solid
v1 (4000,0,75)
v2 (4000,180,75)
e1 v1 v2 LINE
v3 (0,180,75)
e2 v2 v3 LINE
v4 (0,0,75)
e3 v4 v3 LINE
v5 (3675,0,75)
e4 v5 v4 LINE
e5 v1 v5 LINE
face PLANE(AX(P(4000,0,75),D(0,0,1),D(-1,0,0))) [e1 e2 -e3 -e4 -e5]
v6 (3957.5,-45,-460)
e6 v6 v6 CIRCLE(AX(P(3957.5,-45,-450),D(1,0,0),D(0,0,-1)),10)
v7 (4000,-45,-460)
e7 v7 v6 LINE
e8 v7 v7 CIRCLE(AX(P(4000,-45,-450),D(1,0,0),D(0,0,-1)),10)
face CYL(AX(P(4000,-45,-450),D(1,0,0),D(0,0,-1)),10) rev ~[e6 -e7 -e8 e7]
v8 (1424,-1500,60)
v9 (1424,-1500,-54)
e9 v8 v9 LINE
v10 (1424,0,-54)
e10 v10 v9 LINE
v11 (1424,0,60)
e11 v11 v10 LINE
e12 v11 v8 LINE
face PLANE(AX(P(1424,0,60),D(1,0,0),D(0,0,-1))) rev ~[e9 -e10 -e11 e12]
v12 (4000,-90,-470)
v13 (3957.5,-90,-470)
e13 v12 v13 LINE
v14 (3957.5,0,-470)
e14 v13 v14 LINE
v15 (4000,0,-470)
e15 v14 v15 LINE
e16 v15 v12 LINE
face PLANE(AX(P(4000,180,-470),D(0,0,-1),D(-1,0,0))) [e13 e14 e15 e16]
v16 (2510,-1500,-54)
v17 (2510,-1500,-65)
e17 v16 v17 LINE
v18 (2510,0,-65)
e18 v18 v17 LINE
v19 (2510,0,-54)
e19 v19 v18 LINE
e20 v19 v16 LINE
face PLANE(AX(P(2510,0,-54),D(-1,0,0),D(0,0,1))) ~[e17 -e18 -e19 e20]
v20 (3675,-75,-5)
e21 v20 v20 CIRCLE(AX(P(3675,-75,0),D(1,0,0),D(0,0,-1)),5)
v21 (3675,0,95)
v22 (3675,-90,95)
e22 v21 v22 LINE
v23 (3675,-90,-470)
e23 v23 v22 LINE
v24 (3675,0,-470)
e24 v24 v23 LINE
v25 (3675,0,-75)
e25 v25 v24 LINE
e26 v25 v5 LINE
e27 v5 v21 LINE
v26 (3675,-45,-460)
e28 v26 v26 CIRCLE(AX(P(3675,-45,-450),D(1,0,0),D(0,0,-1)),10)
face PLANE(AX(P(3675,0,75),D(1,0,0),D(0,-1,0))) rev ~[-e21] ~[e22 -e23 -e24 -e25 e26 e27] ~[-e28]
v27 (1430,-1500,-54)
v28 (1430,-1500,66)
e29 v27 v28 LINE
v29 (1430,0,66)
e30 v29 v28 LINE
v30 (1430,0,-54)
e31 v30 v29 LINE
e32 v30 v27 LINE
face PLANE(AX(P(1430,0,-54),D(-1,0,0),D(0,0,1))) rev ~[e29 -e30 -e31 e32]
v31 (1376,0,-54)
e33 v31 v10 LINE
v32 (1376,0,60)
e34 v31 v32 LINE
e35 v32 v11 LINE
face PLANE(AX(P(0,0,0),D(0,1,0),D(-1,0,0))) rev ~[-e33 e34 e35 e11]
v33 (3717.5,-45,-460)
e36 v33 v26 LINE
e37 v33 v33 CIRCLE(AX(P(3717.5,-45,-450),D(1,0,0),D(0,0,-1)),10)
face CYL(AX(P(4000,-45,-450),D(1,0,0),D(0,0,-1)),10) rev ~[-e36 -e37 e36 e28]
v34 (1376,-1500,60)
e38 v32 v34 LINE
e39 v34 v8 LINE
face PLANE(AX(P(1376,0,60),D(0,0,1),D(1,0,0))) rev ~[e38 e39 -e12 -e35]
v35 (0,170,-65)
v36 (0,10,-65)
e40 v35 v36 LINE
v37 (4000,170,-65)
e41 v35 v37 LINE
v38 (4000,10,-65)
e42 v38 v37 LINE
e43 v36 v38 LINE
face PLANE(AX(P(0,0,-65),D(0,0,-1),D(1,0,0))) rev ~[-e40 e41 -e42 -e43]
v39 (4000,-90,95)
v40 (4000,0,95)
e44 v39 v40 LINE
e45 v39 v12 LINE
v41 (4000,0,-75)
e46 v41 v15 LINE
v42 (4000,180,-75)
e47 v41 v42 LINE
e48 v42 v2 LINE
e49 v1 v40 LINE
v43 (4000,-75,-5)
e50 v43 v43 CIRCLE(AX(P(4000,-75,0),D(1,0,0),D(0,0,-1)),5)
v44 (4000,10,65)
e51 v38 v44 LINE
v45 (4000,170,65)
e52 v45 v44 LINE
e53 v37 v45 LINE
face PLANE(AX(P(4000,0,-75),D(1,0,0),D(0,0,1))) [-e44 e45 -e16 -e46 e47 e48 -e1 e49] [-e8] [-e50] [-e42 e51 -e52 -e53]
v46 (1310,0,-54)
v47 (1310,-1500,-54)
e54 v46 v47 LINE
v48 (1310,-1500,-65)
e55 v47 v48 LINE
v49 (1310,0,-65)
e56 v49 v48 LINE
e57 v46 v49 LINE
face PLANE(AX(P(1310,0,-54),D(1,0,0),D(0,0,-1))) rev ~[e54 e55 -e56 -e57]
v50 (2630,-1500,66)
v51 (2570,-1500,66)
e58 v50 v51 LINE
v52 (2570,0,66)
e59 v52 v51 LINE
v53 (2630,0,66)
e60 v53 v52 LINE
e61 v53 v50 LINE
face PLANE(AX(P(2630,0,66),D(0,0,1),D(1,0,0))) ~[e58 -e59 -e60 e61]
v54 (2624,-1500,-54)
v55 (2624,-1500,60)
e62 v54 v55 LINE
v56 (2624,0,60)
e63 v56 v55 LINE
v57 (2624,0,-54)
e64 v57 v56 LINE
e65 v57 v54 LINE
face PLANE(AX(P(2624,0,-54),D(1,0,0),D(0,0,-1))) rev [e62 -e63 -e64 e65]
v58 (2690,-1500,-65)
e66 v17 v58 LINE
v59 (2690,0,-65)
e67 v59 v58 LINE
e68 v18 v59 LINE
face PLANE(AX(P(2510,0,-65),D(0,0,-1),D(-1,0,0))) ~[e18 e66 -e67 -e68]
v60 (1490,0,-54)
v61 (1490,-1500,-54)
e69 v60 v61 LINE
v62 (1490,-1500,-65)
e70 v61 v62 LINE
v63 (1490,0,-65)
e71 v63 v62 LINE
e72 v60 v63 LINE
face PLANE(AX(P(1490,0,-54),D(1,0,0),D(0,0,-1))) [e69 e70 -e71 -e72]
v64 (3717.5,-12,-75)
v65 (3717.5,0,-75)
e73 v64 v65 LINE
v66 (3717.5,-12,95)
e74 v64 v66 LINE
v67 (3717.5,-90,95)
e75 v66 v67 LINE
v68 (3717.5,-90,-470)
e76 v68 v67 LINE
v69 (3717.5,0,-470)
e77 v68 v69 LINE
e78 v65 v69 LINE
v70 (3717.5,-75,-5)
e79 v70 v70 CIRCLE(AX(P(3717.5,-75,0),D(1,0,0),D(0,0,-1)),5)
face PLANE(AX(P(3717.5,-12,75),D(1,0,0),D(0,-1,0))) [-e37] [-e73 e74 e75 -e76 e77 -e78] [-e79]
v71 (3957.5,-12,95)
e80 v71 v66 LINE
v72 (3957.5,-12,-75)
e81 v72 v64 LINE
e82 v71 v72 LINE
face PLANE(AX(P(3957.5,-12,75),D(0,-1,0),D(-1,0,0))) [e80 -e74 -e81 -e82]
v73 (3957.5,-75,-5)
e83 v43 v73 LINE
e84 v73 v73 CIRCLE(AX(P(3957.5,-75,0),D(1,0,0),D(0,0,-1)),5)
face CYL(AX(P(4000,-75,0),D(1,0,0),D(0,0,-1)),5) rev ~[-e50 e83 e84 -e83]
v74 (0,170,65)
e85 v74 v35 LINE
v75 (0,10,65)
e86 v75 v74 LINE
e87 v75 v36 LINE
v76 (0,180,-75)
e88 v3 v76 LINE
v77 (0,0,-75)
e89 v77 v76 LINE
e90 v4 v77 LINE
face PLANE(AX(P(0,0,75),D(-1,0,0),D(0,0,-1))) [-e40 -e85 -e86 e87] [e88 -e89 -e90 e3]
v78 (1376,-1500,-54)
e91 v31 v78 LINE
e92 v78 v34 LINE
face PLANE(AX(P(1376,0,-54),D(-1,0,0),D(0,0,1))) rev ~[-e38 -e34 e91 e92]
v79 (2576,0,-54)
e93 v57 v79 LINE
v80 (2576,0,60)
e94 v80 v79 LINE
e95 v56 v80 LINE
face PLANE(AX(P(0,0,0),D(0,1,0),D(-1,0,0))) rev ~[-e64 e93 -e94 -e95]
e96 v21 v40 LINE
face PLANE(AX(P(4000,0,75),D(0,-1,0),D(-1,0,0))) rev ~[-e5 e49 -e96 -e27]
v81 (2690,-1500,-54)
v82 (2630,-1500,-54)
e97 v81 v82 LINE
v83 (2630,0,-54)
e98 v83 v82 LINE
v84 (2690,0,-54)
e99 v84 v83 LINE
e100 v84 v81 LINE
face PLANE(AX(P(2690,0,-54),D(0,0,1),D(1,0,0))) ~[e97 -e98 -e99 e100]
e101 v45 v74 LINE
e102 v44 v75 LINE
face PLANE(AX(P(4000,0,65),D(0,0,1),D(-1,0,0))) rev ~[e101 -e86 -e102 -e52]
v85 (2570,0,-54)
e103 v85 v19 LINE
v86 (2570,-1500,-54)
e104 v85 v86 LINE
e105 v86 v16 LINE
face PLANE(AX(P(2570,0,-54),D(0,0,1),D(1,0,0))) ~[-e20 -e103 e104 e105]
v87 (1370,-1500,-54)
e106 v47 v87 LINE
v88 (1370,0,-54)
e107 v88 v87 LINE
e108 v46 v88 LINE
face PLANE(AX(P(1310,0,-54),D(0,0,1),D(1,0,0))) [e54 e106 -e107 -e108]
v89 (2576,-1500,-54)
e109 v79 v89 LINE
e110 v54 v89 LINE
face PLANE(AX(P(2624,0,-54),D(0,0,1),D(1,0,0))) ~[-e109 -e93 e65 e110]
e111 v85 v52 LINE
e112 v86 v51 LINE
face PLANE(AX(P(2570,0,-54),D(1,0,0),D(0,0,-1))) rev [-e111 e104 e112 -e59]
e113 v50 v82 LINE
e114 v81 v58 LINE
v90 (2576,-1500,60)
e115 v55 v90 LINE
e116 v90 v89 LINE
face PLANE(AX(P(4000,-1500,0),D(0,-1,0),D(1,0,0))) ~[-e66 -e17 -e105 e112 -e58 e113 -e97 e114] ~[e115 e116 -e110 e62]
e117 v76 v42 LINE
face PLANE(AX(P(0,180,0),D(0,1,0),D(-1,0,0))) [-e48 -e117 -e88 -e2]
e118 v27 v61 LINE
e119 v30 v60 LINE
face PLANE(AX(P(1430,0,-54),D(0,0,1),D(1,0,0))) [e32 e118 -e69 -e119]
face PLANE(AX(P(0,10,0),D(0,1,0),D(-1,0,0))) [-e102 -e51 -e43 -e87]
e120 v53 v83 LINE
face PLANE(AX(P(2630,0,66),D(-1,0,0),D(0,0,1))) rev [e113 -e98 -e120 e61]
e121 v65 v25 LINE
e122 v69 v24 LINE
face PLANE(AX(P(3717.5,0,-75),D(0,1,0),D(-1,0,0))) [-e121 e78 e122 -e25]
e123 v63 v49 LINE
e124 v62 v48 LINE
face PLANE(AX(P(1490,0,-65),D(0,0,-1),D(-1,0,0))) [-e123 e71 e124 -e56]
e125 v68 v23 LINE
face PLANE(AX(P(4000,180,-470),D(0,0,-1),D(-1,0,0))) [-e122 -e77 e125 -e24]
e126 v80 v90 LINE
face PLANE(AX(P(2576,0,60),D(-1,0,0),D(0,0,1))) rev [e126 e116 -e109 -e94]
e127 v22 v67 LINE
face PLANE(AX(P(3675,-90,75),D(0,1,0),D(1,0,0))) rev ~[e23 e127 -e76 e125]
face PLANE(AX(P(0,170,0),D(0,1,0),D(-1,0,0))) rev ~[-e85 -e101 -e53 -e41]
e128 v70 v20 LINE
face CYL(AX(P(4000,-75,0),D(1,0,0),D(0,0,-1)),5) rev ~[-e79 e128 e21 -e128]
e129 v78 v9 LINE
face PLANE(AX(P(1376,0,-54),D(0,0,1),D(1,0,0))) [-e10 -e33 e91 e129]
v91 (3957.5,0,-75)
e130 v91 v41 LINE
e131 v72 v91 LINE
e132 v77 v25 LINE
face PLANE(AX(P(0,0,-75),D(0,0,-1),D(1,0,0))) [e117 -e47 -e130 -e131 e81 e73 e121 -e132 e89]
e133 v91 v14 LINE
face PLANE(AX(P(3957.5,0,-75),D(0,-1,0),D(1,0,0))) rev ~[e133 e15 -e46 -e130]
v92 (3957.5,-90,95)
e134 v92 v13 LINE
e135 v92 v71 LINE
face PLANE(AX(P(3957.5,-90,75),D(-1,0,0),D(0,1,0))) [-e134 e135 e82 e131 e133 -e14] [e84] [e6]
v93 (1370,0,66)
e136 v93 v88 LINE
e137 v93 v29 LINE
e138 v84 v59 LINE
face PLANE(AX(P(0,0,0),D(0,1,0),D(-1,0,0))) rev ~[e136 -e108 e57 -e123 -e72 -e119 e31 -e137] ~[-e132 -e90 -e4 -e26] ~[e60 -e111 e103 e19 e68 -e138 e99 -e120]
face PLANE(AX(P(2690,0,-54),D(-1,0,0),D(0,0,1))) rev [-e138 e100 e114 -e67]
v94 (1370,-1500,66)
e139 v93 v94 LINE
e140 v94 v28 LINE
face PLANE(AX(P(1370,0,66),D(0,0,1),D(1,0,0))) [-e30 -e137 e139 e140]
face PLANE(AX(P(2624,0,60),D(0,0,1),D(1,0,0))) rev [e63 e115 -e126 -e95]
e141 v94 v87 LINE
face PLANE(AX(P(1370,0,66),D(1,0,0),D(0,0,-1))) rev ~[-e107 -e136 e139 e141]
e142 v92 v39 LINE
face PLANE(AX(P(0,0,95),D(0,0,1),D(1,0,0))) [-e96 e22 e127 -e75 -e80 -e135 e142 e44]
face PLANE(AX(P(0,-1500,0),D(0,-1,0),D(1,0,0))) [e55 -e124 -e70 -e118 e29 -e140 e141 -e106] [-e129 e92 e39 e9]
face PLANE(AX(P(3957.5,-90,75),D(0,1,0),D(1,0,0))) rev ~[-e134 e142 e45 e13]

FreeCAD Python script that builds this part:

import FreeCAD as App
import Part
import Sketcher
from FreeCAD import Vector


def faces_at(feature, points):
    """Names of the faces that lie closest to the given points."""
    faces = feature.Shape.Faces
    near = lambda p: min(range(len(faces)), key=lambda i: faces[i].distToShape(Part.Vertex(*p))[0])
    return sorted({f"Face{near(p) + 1}" for p in points})

doc = App.newDocument("Part")
params = doc.addObject("Spreadsheet::Sheet", "Params")
for row, (alias, value) in enumerate([
    ("sketch1_width", "4000 mm"),
    ("sketch1_height", "150 mm"),
    ("pad1_length", "180 mm"),
    ("thickness_wall", "10 mm"),
    ("sketch2_width", "60 mm"),
    ("sketch2_height", "114 mm"),
    ("sketch2_height2", "11 mm"),
    ("pad2_length", "1500 mm"),
    ("sketch3_width", "325 mm"),
    ("sketch3_height", "90 mm"),
    ("sketch3_width2", "42.5 mm"),
    ("pad3_length", "20 mm"),
    ("pad3_length2", "150 mm"),
    ("sketch4_height", "90 mm"),
    ("sketch4_width", "42.5 mm"),
    ("pad4_length", "395 mm"),
    ("sketch5_diameter", "10 mm"),
    ("sketch5_diameter2", "20 mm"),
    ("pocket1_length", "325 mm"),
], start=1):
    params.set(f"A{row}", alias)
    params.set(f"B{row}", "=" + value)
    params.setAlias(f"B{row}", alias)

body = doc.addObject("PartDesign::Body", "Body")

sketch1 = body.newObject("Sketcher::SketchObject", "Sketch")
sketch1.AttachmentSupport = (doc.getObject("XZ_Plane"), [""])
sketch1.MapMode = "FlatFace"
sketch1.addGeometry([
    Part.LineSegment(Vector(0, 75, 0), Vector(4000, 75, 0)),
    Part.LineSegment(Vector(4000, 75, 0), Vector(4000, -75, 0)),
    Part.LineSegment(Vector(4000, -75, 0), Vector(0, -75, 0)),
    Part.LineSegment(Vector(0, -75, 0), Vector(0, 75, 0)),
], False)
sketch1.addConstraint([
    Sketcher.Constraint("Coincident", 0, 2, 1, 1),
    Sketcher.Constraint("Coincident", 1, 2, 2, 1),
    Sketcher.Constraint("Coincident", 2, 2, 3, 1),
    Sketcher.Constraint("Coincident", 3, 2, 0, 1),
    Sketcher.Constraint("Horizontal", 0),
    Sketcher.Constraint("Vertical", 1),
    Sketcher.Constraint("Horizontal", 2),
    Sketcher.Constraint("Vertical", 3),
    Sketcher.Constraint("Symmetric", 2, 2, 3, 2, -1, 1),
    Sketcher.Constraint("DistanceX", 0, 1, 0, 2, 4000.0),
    Sketcher.Constraint("DistanceY", 1, 2, 1, 1, 150.0),
])
sketch1.setExpression("Constraints[9]", "Params.sketch1_width")
sketch1.setExpression("Constraints[10]", "Params.sketch1_height")
pad1 = body.newObject("PartDesign::Pad", "Pad")
pad1.Profile = sketch1
pad1.setExpression("Length", "Params.pad1_length")
pad1.Reversed = True
doc.recompute()

thickness = body.newObject("PartDesign::Thickness", "Thickness")
thickness.Base = (pad1, faces_at(pad1, [(4000, 60, 25), (0, 60, -25)]))
thickness.setExpression("Value", "Params.thickness_wall")
thickness.Reversed = True
thickness.Join = "Intersection"

sketch2 = body.newObject("Sketcher::SketchObject", "Sketch001")
sketch2.AttachmentSupport = (doc.getObject("XZ_Plane"), [""])
sketch2.MapMode = "FlatFace"
sketch2.addGeometry([
    Part.LineSegment(Vector(1370, -54, 0), Vector(1310, -54, 0)),
    Part.LineSegment(Vector(1310, -54, 0), Vector(1310, -65, 0)),
    Part.LineSegment(Vector(1310, -65, 0), Vector(1490, -65, 0)),
    Part.LineSegment(Vector(1490, -65, 0), Vector(1490, -54, 0)),
    Part.LineSegment(Vector(1490, -54, 0), Vector(1430, -54, 0)),
    Part.LineSegment(Vector(1430, -54, 0), Vector(1430, 66, 0)),
    Part.LineSegment(Vector(1430, 66, 0), Vector(1370, 66, 0)),
    Part.LineSegment(Vector(1370, 66, 0), Vector(1370, -54, 0)),
    Part.LineSegment(Vector(1424, -54, 0), Vector(1376, -54, 0)),
    Part.LineSegment(Vector(1376, -54, 0), Vector(1376, 60, 0)),
    Part.LineSegment(Vector(1376, 60, 0), Vector(1424, 60, 0)),
    Part.LineSegment(Vector(1424, 60, 0), Vector(1424, -54, 0)),
], False)
sketch2.addConstraint([
    Sketcher.Constraint("Coincident", 0, 2, 1, 1),
    Sketcher.Constraint("Coincident", 1, 2, 2, 1),
    Sketcher.Constraint("Coincident", 2, 2, 3, 1),
    Sketcher.Constraint("Coincident", 3, 2, 4, 1),
    Sketcher.Constraint("Coincident", 4, 2, 5, 1),
    Sketcher.Constraint("Coincident", 5, 2, 6, 1),
    Sketcher.Constraint("Coincident", 6, 2, 7, 1),
    Sketcher.Constraint("Coincident", 7, 2, 0, 1),
    Sketcher.Constraint("Coincident", 8, 2, 9, 1),
    Sketcher.Constraint("Coincident", 9, 2, 10, 1),
    Sketcher.Constraint("Coincident", 10, 2, 11, 1),
    Sketcher.Constraint("Coincident", 11, 2, 8, 1),
    Sketcher.Constraint("Horizontal", 0),
    Sketcher.Constraint("Vertical", 1),
    Sketcher.Constraint("Horizontal", 2),
    Sketcher.Constraint("Vertical", 3),
    Sketcher.Constraint("Horizontal", 4),
    Sketcher.Constraint("Vertical", 5),
    Sketcher.Constraint("Horizontal", 6),
    Sketcher.Constraint("Vertical", 7),
    Sketcher.Constraint("Horizontal", 8),
    Sketcher.Constraint("Vertical", 9),
    Sketcher.Constraint("Horizontal", 10),
    Sketcher.Constraint("Vertical", 11),
    Sketcher.Constraint("Horizontal", 0, 2, 3, 2),
    Sketcher.Constraint("Horizontal", 7, 2, 8, 2),
    Sketcher.Constraint("Equal", 0, 4),
    Sketcher.Constraint("Equal", 4, 6),
    Sketcher.Constraint("DistanceX", 0, 2, 0, 1, 60.0),
    Sketcher.Constraint("DistanceY", 9, 1, 9, 2, 114.0),
    Sketcher.Constraint("DistanceY", -1, 1, 9, 2, 60.0),
    Sketcher.Constraint("DistanceX", 7, 2, 8, 2, 6.0),
    Sketcher.Constraint("DistanceY", 9, 2, 6, 2, 6.0),
    Sketcher.Constraint("DistanceX", 10, 2, 5, 2, 6.0),
    Sketcher.Constraint("DistanceY", 1, 2, 1, 1, 11.0),
    Sketcher.Constraint("DistanceX", -1, 1, 0, 2, 1310.0),
])
sketch2.setExpression("Constraints[28]", "Params.sketch2_width")
sketch2.setExpression("Constraints[29]", "Params.sketch2_height")
sketch2.setExpression("Constraints[34]", "Params.sketch2_height2")
pad2 = body.newObject("PartDesign::Pad", "Pad001")
pad2.Profile = sketch2
pad2.setExpression("Length", "Params.pad2_length")
doc.recompute()

datumplane = body.newObject("PartDesign::Plane", "DatumPlane")
datumplane.AttachmentSupport = (doc.getObject("YZ_Plane"), [""])
datumplane.MapMode = "FlatFace"
datumplane.AttachmentOffset = App.Placement(Vector(0, 0, 2000), App.Rotation())
mirrored = body.newObject("PartDesign::Mirrored", "Mirrored")
mirrored.Originals = [pad2]
mirrored.MirrorPlane = (datumplane, [""])
body.Tip = mirrored

sketch3 = body.newObject("Sketcher::SketchObject", "Sketch002")
sketch3.AttachmentSupport = (doc.getObject("XY_Plane"), [""])
sketch3.MapMode = "FlatFace"
sketch3.AttachmentOffset = App.Placement(Vector(0, 0, 75), App.Rotation())
sketch3.addGeometry([
    Part.LineSegment(Vector(4000, -90, 0), Vector(4000, 0, 0)),
    Part.LineSegment(Vector(4000, 0, 0), Vector(3675, 0, 0)),
    Part.LineSegment(Vector(3675, 0, 0), Vector(3675, -90, 0)),
    Part.LineSegment(Vector(3675, -90, 0), Vector(3718, -90, 0)),
    Part.LineSegment(Vector(3718, -90, 0), Vector(3718, -12, 0)),
    Part.LineSegment(Vector(3718, -12, 0), Vector(3958, -12, 0)),
    Part.LineSegment(Vector(3958, -12, 0), Vector(3958, -90, 0)),
    Part.LineSegment(Vector(3958, -90, 0), Vector(4000, -90, 0)),
], False)
sketch3.addConstraint([
    Sketcher.Constraint("Coincident", 0, 2, 1, 1),
    Sketcher.Constraint("Coincident", 1, 2, 2, 1),
    Sketcher.Constraint("Coincident", 2, 2, 3, 1),
    Sketcher.Constraint("Coincident", 3, 2, 4, 1),
    Sketcher.Constraint("Coincident", 4, 2, 5, 1),
    Sketcher.Constraint("Coincident", 5, 2, 6, 1),
    Sketcher.Constraint("Coincident", 6, 2, 7, 1),
    Sketcher.Constraint("Coincident", 7, 2, 0, 1),
    Sketcher.Constraint("Vertical", 0),
    Sketcher.Constraint("Horizontal", 1),
    Sketcher.Constraint("Vertical", 2),
    Sketcher.Constraint("Horizontal", 3),
    Sketcher.Constraint("Vertical", 4),
    Sketcher.Constraint("Horizontal", 5),
    Sketcher.Constraint("Vertical", 6),
    Sketcher.Constraint("Horizontal", 7),
    Sketcher.Constraint("PointOnObject", 0, 2, -1),
    Sketcher.Constraint("Horizontal", 3, 2, 6, 2),
    Sketcher.Constraint("Equal", 3, 7),
    Sketcher.Constraint("DistanceX", 1, 2, 1, 1, 325.0),
    Sketcher.Constraint("DistanceY", 0, 1, 0, 2, 90.0),
    Sketcher.Constraint("DistanceX", 3, 1, 3, 2, 42.5),
    Sketcher.Constraint("DistanceY", 4, 2, -1, 1, 12.0),
    Sketcher.Constraint("DistanceX", -1, 1, 0, 2, 4000.0),
])
sketch3.setExpression("Constraints[19]", "Params.sketch3_width")
sketch3.setExpression("Constraints[20]", "Params.sketch3_height")
sketch3.setExpression("Constraints[21]", "Params.sketch3_width2")
pad3 = body.newObject("PartDesign::Pad", "Pad002")
pad3.Profile = sketch3
pad3.Type = "TwoLengths"
pad3.setExpression("Length", "Params.pad3_length")
pad3.setExpression("Length2", "Params.pad3_length2")

sketch4 = body.newObject("Sketcher::SketchObject", "Sketch003")
sketch4.AttachmentSupport = (doc.getObject("XY_Plane"), [""])
sketch4.MapMode = "FlatFace"
sketch4.AttachmentOffset = App.Placement(Vector(0, 0, -75), App.Rotation())
sketch4.addGeometry([
    Part.LineSegment(Vector(3958, 0, 0), Vector(4000, 0, 0)),
    Part.LineSegment(Vector(4000, 0, 0), Vector(4000, -90, 0)),
    Part.LineSegment(Vector(4000, -90, 0), Vector(3958, -90, 0)),
    Part.LineSegment(Vector(3958, -90, 0), Vector(3958, 0, 0)),
    Part.LineSegment(Vector(3718, 0, 0), Vector(3718, -90, 0)),
    Part.LineSegment(Vector(3718, -90, 0), Vector(3675, -90, 0)),
    Part.LineSegment(Vector(3675, -90, 0), Vector(3675, 0, 0)),
    Part.LineSegment(Vector(3675, 0, 0), Vector(3718, 0, 0)),
], False)
sketch4.addConstraint([
    Sketcher.Constraint("Coincident", 0, 2, 1, 1),
    Sketcher.Constraint("Coincident", 1, 2, 2, 1),
    Sketcher.Constraint("Coincident", 2, 2, 3, 1),
    Sketcher.Constraint("Coincident", 3, 2, 0, 1),
    Sketcher.Constraint("Coincident", 4, 2, 5, 1),
    Sketcher.Constraint("Coincident", 5, 2, 6, 1),
    Sketcher.Constraint("Coincident", 6, 2, 7, 1),
    Sketcher.Constraint("Coincident", 7, 2, 4, 1),
    Sketcher.Constraint("Horizontal", 0),
    Sketcher.Constraint("Vertical", 1),
    Sketcher.Constraint("Horizontal", 2),
    Sketcher.Constraint("Vertical", 3),
    Sketcher.Constraint("Vertical", 4),
    Sketcher.Constraint("Horizontal", 5),
    Sketcher.Constraint("Vertical", 6),
    Sketcher.Constraint("Horizontal", 7),
    Sketcher.Constraint("PointOnObject", 0, 2, -1),
    Sketcher.Constraint("PointOnObject", 6, 2, -1),
    Sketcher.Constraint("Horizontal", 2, 2, 4, 2),
    Sketcher.Constraint("Equal", 2, 5),
    Sketcher.Constraint("DistanceY", 1, 2, 1, 1, 90.0),
    Sketcher.Constraint("DistanceX", 0, 1, 0, 2, 42.5),
    Sketcher.Constraint("DistanceX", -1, 1, 0, 2, 4000.0),
    Sketcher.Constraint("DistanceX", -1, 1, 5, 2, 3675.0),
])
sketch4.setExpression("Constraints[20]", "Params.sketch4_height")
sketch4.setExpression("Constraints[21]", "Params.sketch4_width")
pad4 = body.newObject("PartDesign::Pad", "Pad003")
pad4.Profile = sketch4
pad4.setExpression("Length", "Params.pad4_length")
pad4.Reversed = True

sketch5 = body.newObject("Sketcher::SketchObject", "Sketch004")
sketch5.AttachmentSupport = (doc.getObject("YZ_Plane"), [""])
sketch5.MapMode = "FlatFace"
sketch5.AttachmentOffset = App.Placement(Vector(0, 0, 4000), App.Rotation())
sketch5.addGeometry([
    Part.Circle(Vector(-75, 0, 0), Vector(0, 0, 1), 5),
    Part.Circle(Vector(-45, -450, 0), Vector(0, 0, 1), 10),
], False)
sketch5.addConstraint([
    Sketcher.Constraint("PointOnObject", 0, 3, -1),
    Sketcher.Constraint("Diameter", 0, 10.0),
    Sketcher.Constraint("Diameter", 1, 20.0),
    Sketcher.Constraint("DistanceX", 0, 3, -1, 1, 75.0),
    Sketcher.Constraint("DistanceX", 1, 3, -1, 1, 45.0),
    Sketcher.Constraint("DistanceY", 1, 3, -1, 1, 450.0),
])
sketch5.setExpression("Constraints[1]", "Params.sketch5_diameter")
sketch5.setExpression("Constraints[2]", "Params.sketch5_diameter2")
pocket1 = body.newObject("PartDesign::Pocket", "Pocket")
pocket1.Profile = sketch5
pocket1.setExpression("Length", "Params.pocket1_length")

doc.recompute()
